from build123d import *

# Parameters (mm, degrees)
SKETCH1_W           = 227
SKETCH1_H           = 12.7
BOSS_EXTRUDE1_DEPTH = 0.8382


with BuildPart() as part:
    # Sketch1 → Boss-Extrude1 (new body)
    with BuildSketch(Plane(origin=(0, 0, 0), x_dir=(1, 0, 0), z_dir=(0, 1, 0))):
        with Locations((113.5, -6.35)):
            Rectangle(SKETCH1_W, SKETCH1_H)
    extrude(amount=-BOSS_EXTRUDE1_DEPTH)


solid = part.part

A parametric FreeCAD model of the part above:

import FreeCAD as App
import Part
import Sketcher

V = App.Vector
Q = App.Units.Quantity

doc = App.newDocument("Part")
body = doc.addObject("PartDesign::Body", "Body")

sketch1 = body.newObject("Sketcher::SketchObject", "Sketch")
sketch1.AttachmentSupport = (doc.getObject("XZ_Plane"), [""])
sketch1.MapMode = "FlatFace"
sketch1.addGeometry(Part.LineSegment(V(0, 0, 0), V(0, 13, 0)), False)
sketch1.addGeometry(Part.LineSegment(V(0, 13, 0), V(227, 13, 0)), False)
sketch1.addGeometry(Part.LineSegment(V(227, 13, 0), V(227, 0, 0)), False)
sketch1.addGeometry(Part.LineSegment(V(227, 0, 0), V(0, 0, 0)), False)
sketch1.addConstraint(Sketcher.Constraint("Coincident", 0, 2, 1, 1))
sketch1.addConstraint(Sketcher.Constraint("Coincident", 1, 2, 2, 1))
sketch1.addConstraint(Sketcher.Constraint("Coincident", 2, 2, 3, 1))
sketch1.addConstraint(Sketcher.Constraint("Coincident", 3, 2, 0, 1))
sketch1.addConstraint(Sketcher.Constraint("Vertical", 0))
sketch1.addConstraint(Sketcher.Constraint("Horizontal", 1))
sketch1.addConstraint(Sketcher.Constraint("Vertical", 2))
sketch1.addConstraint(Sketcher.Constraint("Horizontal", 3))
sketch1.addConstraint(Sketcher.Constraint("Coincident", 3, 2, -1, 1))
sketch1.addConstraint(Sketcher.Constraint("DistanceY", 0, 1, 0, 2, Q("0.5 in")))
sketch1.addConstraint(Sketcher.Constraint("DistanceX", 1, 1, 1, 2, 227.0))
pad1 = body.newObject("PartDesign::Pad", "Pad")
pad1.Profile = sketch1
pad1.Length = Q("0.033 in")

doc.recompute()
